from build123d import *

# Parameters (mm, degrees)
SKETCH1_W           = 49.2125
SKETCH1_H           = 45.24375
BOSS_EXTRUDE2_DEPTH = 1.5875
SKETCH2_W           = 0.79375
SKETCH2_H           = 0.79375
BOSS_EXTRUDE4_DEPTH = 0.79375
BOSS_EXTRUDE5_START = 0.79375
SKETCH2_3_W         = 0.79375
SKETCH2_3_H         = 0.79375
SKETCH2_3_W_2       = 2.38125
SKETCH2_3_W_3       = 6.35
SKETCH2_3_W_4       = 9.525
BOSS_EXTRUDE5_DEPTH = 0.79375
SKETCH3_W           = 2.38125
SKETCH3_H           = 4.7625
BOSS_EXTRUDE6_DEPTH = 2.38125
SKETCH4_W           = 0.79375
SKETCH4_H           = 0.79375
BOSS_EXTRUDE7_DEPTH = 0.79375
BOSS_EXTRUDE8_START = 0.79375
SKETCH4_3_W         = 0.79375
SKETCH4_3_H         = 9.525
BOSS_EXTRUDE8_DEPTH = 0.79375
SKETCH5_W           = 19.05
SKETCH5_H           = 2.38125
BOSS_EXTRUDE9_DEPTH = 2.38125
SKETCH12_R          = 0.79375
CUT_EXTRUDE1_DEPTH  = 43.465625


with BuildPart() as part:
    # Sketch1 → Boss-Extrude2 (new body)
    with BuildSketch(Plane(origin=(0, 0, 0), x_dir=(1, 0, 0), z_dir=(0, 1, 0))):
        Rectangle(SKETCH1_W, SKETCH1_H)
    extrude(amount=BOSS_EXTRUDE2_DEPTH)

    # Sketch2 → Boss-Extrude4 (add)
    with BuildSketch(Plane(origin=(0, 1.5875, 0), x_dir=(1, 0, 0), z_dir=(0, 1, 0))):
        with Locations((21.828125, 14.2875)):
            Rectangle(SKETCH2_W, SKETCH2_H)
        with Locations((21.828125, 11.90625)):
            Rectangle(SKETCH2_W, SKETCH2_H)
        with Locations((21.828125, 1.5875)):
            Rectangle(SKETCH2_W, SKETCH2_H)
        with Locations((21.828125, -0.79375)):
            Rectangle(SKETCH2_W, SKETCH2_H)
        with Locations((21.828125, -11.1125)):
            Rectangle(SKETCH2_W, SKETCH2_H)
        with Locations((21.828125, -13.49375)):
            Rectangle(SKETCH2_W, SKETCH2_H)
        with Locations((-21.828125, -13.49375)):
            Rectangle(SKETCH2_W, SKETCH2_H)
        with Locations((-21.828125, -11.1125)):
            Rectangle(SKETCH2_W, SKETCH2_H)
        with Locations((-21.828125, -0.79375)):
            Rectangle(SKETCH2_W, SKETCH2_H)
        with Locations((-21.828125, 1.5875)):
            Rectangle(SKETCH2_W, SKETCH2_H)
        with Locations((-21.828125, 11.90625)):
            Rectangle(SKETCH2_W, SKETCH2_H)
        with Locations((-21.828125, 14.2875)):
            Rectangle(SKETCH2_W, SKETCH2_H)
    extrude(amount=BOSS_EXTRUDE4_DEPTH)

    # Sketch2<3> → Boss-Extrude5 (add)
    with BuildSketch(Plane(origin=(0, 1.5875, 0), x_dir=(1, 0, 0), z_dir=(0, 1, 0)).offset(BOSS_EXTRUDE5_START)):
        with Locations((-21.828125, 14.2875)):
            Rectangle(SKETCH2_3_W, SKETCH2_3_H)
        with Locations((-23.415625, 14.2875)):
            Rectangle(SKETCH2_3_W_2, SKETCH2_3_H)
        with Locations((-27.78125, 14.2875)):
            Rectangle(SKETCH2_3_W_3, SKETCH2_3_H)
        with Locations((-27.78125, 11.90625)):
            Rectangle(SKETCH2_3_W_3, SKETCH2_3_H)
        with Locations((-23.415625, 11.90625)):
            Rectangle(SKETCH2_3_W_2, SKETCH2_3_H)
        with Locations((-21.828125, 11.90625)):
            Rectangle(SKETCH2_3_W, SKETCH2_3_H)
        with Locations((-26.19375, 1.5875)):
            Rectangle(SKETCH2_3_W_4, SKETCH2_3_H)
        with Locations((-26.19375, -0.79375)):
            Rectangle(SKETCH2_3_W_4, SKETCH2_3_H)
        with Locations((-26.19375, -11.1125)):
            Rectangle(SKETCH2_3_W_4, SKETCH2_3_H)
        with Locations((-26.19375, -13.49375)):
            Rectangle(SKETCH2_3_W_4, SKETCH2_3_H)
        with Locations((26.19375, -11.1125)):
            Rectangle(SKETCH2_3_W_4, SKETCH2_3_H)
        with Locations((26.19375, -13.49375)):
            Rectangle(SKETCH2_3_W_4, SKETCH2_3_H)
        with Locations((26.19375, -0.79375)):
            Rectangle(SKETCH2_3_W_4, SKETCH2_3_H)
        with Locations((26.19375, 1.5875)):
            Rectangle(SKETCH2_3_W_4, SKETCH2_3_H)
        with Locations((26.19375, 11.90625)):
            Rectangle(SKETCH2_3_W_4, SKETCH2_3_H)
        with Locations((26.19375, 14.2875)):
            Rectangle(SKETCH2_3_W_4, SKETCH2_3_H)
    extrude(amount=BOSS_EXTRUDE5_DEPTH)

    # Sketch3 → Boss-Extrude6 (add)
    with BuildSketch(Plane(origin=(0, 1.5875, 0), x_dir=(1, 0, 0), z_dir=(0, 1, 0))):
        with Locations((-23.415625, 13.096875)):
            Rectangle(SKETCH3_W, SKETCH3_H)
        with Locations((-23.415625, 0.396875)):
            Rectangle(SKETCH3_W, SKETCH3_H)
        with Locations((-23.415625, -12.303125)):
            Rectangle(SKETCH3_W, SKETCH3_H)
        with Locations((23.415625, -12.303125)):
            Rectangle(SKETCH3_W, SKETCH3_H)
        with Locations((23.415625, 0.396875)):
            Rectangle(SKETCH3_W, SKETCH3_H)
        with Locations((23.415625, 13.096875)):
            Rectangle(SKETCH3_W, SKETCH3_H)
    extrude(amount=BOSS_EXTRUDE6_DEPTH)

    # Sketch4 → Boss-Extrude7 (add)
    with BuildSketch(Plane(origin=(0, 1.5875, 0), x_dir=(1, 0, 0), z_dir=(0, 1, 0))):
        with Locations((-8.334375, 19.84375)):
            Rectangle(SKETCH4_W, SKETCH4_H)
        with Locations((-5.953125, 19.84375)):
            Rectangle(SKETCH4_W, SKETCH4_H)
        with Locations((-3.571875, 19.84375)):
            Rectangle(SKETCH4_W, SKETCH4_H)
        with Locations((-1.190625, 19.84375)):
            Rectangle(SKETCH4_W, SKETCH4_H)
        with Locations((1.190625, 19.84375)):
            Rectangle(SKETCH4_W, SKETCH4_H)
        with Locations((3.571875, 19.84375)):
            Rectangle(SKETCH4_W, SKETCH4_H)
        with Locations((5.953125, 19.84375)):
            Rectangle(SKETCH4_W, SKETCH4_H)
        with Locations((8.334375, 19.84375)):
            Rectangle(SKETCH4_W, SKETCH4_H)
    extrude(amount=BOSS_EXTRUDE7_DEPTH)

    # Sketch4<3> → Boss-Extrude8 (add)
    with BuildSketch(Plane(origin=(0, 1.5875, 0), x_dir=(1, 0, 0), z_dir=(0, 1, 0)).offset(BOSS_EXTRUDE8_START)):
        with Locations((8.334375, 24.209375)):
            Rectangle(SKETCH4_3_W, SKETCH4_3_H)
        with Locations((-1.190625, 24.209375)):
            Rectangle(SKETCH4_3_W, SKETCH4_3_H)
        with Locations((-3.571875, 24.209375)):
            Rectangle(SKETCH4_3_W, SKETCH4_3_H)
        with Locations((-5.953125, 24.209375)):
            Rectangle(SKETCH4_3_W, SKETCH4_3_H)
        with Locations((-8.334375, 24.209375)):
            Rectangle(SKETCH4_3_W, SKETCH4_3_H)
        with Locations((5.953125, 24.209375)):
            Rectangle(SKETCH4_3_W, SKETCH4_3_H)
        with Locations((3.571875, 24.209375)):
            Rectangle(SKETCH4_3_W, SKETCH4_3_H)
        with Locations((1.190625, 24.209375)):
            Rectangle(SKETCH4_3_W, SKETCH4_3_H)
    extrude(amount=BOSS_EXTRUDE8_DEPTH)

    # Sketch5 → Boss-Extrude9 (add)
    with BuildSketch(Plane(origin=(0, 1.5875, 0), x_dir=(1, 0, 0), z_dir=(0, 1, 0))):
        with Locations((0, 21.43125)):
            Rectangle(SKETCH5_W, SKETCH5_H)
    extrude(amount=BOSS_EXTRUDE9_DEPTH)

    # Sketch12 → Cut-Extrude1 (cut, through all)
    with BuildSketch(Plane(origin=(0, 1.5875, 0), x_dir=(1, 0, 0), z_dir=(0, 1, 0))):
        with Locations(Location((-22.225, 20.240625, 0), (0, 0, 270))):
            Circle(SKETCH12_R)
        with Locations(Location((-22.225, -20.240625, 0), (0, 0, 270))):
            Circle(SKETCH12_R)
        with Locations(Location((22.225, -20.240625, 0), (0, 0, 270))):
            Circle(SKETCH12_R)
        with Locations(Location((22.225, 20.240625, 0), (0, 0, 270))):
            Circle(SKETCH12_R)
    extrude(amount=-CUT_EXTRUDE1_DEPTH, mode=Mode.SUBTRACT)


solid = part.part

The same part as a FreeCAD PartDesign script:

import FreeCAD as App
import Part
import Sketcher
Q = App.Units.Quantity


def add_polygon(sketch, points):
    """Adds a closed chain of lines whose ends are joined by coincident constraints."""
    first, n = sketch.GeometryCount, len(points)
    for a, b in zip(points, points[1:] + points[:1]):
        sketch.addGeometry(Part.LineSegment(App.Vector(*a, 0), App.Vector(*b, 0)), False)
    for i in range(n):
        sketch.addConstraint(Sketcher.Constraint("Coincident", first + i, 2, first + (i + 1) % n, 1))

doc = App.newDocument("Part")
body = doc.addObject("PartDesign::Body", "Body")

sketch1 = body.newObject("Sketcher::SketchObject", "Sketch")
sketch1.AttachmentSupport = (doc.getObject("XZ_Plane"), [""])
sketch1.MapMode = "FlatFace"
add_polygon(sketch1, [(-25, -23), (-25, 23), (25, 23), (25, -23)])
sketch1.addConstraint(Sketcher.Constraint("Vertical", 0))
sketch1.addConstraint(Sketcher.Constraint("Horizontal", 1))
sketch1.addConstraint(Sketcher.Constraint("Vertical", 2))
sketch1.addConstraint(Sketcher.Constraint("Horizontal", 3))
sketch1.addConstraint(Sketcher.Constraint("Symmetric", 0, 2, 2, 2, -1, 1))
sketch1.addConstraint(Sketcher.Constraint("DistanceX", 1, 1, 1, 2, Q("1.9375 in")))
sketch1.addConstraint(Sketcher.Constraint("DistanceY", 0, 1, 0, 2, Q("1.78125 in")))
pad1 = body.newObject("PartDesign::Pad", "Pad")
pad1.Profile = sketch1
pad1.Length = Q("0.0625 in")
pad1.Reversed = True

sketch2 = body.newObject("Sketcher::SketchObject", "Sketch001")
sketch2.AttachmentSupport = (doc.getObject("XZ_Plane"), [""])
sketch2.MapMode = "FlatFace"
sketch2.AttachmentOffset = App.Placement(App.Vector(0, 0, -0.0625 * 25.4), App.Rotation())
add_polygon(sketch2, [(21.4, -14.7), (21.4, -13.9), (22.2, -13.9), (22.2, -14.7)])
add_polygon(sketch2, [(21.4, -12.3), (21.4, -11.5), (22.2, -11.5), (22.2, -12.3)])
add_polygon(sketch2, [(21.4, -2), (21.4, -1.2), (22.2, -1.2), (22.2, -2)])
add_polygon(sketch2, [(21.4, 0.4), (21.4, 1.2), (22.2, 1.2), (22.2, 0.4)])
add_polygon(sketch2, [(21.4, 10.7), (21.4, 11.5), (22.2, 11.5), (22.2, 10.7)])
add_polygon(sketch2, [(21.4, 13.1), (21.4, 13.9), (22.2, 13.9), (22.2, 13.1)])
add_polygon(sketch2, [(-22.2, 13.1), (-22.2, 13.9), (-21.4, 13.9), (-21.4, 13.1)])
add_polygon(sketch2, [(-22.2, 10.7), (-22.2, 11.5), (-21.4, 11.5), (-21.4, 10.7)])
add_polygon(sketch2, [(-22.2, 0.4), (-22.2, 1.2), (-21.4, 1.2), (-21.4, 0.4)])
add_polygon(sketch2, [(-22.2, -2), (-22.2, -1.2), (-21.4, -1.2), (-21.4, -2)])
add_polygon(sketch2, [(-22.2, -12.3), (-22.2, -11.5), (-21.4, -11.5), (-21.4, -12.3)])
add_polygon(sketch2, [(-22.2, -14.7), (-22.2, -13.9), (-21.4, -13.9), (-21.4, -14.7)])
sketch2.addConstraint(Sketcher.Constraint("Vertical", 0))
sketch2.addConstraint(Sketcher.Constraint("Horizontal", 1))
sketch2.addConstraint(Sketcher.Constraint("Vertical", 2))
sketch2.addConstraint(Sketcher.Constraint("Horizontal", 3))
sketch2.addConstraint(Sketcher.Constraint("Vertical", 4))
sketch2.addConstraint(Sketcher.Constraint("Horizontal", 5))
sketch2.addConstraint(Sketcher.Constraint("Vertical", 6))
sketch2.addConstraint(Sketcher.Constraint("Horizontal", 7))
sketch2.addConstraint(Sketcher.Constraint("Vertical", 8))
sketch2.addConstraint(Sketcher.Constraint("Horizontal", 9))
sketch2.addConstraint(Sketcher.Constraint("Vertical", 10))
sketch2.addConstraint(Sketcher.Constraint("Horizontal", 11))
sketch2.addConstraint(Sketcher.Constraint("Vertical", 12))
sketch2.addConstraint(Sketcher.Constraint("Horizontal", 13))
sketch2.addConstraint(Sketcher.Constraint("Vertical", 14))
sketch2.addConstraint(Sketcher.Constraint("Horizontal", 15))
sketch2.addConstraint(Sketcher.Constraint("Vertical", 16))
sketch2.addConstraint(Sketcher.Constraint("Horizontal", 17))
sketch2.addConstraint(Sketcher.Constraint("Vertical", 18))
sketch2.addConstraint(Sketcher.Constraint("Horizontal", 19))
sketch2.addConstraint(Sketcher.Constraint("Vertical", 20))
sketch2.addConstraint(Sketcher.Constraint("Horizontal", 21))
sketch2.addConstraint(Sketcher.Constraint("Vertical", 22))
sketch2.addConstraint(Sketcher.Constraint("Horizontal", 23))
sketch2.addConstraint(Sketcher.Constraint("Vertical", 24))
sketch2.addConstraint(Sketcher.Constraint("Horizontal", 25))
sketch2.addConstraint(Sketcher.Constraint("Vertical", 26))
sketch2.addConstraint(Sketcher.Constraint("Horizontal", 27))
sketch2.addConstraint(Sketcher.Constraint("Vertical", 28))
sketch2.addConstraint(Sketcher.Constraint("Horizontal", 29))
sketch2.addConstraint(Sketcher.Constraint("Vertical", 30))
sketch2.addConstraint(Sketcher.Constraint("Horizontal", 31))
sketch2.addConstraint(Sketcher.Constraint("Vertical", 32))
sketch2.addConstraint(Sketcher.Constraint("Horizontal", 33))
sketch2.addConstraint(Sketcher.Constraint("Vertical", 34))
sketch2.addConstraint(Sketcher.Constraint("Horizontal", 35))
sketch2.addConstraint(Sketcher.Constraint("Vertical", 36))
sketch2.addConstraint(Sketcher.Constraint("Horizontal", 37))
sketch2.addConstraint(Sketcher.Constraint("Vertical", 38))
sketch2.addConstraint(Sketcher.Constraint("Horizontal", 39))
sketch2.addConstraint(Sketcher.Constraint("Vertical", 40))
sketch2.addConstraint(Sketcher.Constraint("Horizontal", 41))
sketch2.addConstraint(Sketcher.Constraint("Vertical", 42))
sketch2.addConstraint(Sketcher.Constraint("Horizontal", 43))
sketch2.addConstraint(Sketcher.Constraint("Vertical", 44))
sketch2.addConstraint(Sketcher.Constraint("Horizontal", 45))
sketch2.addConstraint(Sketcher.Constraint("Vertical", 46))
sketch2.addConstraint(Sketcher.Constraint("Horizontal", 47))
sketch2.addConstraint(Sketcher.Constraint("Symmetric", 1, 2, 24, 2, -1, 1))
sketch2.addConstraint(Sketcher.Constraint("Symmetric", 5, 2, 28, 2, -1, 1))
sketch2.addConstraint(Sketcher.Constraint("Symmetric", 9, 2, 32, 2, -1, 1))
sketch2.addConstraint(Sketcher.Constraint("Symmetric", 13, 2, 36, 2, -1, 1))
sketch2.addConstraint(Sketcher.Constraint("Symmetric", 17, 2, 40, 2, -1, 1))
sketch2.addConstraint(Sketcher.Constraint("Symmetric", 21, 2, 44, 2, -1, 1))
sketch2.addConstraint(Sketcher.Constraint("Symmetric", 21, 2, 24, 2, -2))
sketch2.addConstraint(Sketcher.Constraint("Symmetric", 23, 2, 26, 2, -2))
sketch2.addConstraint(Sketcher.Constraint("Symmetric", 17, 2, 28, 2, -2))
sketch2.addConstraint(Sketcher.Constraint("Symmetric", 19, 2, 30, 2, -2))
sketch2.addConstraint(Sketcher.Constraint("Symmetric", 13, 2, 32, 2, -2))
sketch2.addConstraint(Sketcher.Constraint("Symmetric", 15, 2, 34, 2, -2))
sketch2.addConstraint(Sketcher.Constraint("Symmetric", 11, 2, 38, 2, -2))
sketch2.addConstraint(Sketcher.Constraint("Symmetric", 7, 2, 42, 2, -2))
sketch2.addConstraint(Sketcher.Constraint("Symmetric", 3, 2, 46, 2, -2))
sketch2.addConstraint(Sketcher.Constraint("Vertical", 3, 2, 4, 2))
sketch2.addConstraint(Sketcher.Constraint("Vertical", 2, 2, 5, 2))
sketch2.addConstraint(Sketcher.Constraint("Vertical", 7, 2, 8, 2))
sketch2.addConstraint(Sketcher.Constraint("Vertical", 6, 2, 9, 2))
sketch2.addConstraint(Sketcher.Constraint("Vertical", 11, 2, 12, 2))
sketch2.addConstraint(Sketcher.Constraint("Vertical", 15, 2, 16, 2))
sketch2.addConstraint(Sketcher.Constraint("Vertical", 19, 2, 20, 2))
sketch2.addConstraint(Sketcher.Constraint("Equal", 47, 0))
sketch2.addConstraint(Sketcher.Constraint("Equal", 2, 4))
sketch2.addConstraint(Sketcher.Constraint("Equal", 6, 8))
sketch2.addConstraint(Sketcher.Constraint("Equal", 10, 12))
sketch2.addConstraint(Sketcher.Constraint("Equal", 14, 16))
sketch2.addConstraint(Sketcher.Constraint("Equal", 18, 20))
sketch2.addConstraint(Sketcher.Constraint("DistanceY", 0, 2, 8, 2, Q("0.5 in")))
sketch2.addConstraint(Sketcher.Constraint("DistanceY", 4, 2, 12, 2, Q("0.5 in")))
sketch2.addConstraint(Sketcher.Constraint("DistanceX", 1, 1, 1, 2, Q("0.03125 in")))
sketch2.addConstraint(Sketcher.Constraint("DistanceX", 24, 2, 21, 2, Q("1.75 in")))
sketch2.addConstraint(Sketcher.Constraint("DistanceY", 0, 2, -1, 1, Q("0.546875 in")))
pad2 = body.newObject("PartDesign::Pad", "Pad001")
pad2.Profile = sketch2
pad2.Length = Q("0.03125 in")
pad2.Reversed = True

sketch3 = body.newObject("Sketcher::SketchObject", "Sketch002")
sketch3.AttachmentSupport = (doc.getObject("XZ_Plane"), [""])
sketch3.MapMode = "FlatFace"
sketch3.AttachmentOffset = App.Placement(App.Vector(0, 0, -0.09375 * 25.4), App.Rotation())
add_polygon(sketch3, [(-21.4, -13.9), (-21.4, -14.7), (-31, -14.7), (-31, -13.9)])
add_polygon(sketch3, [(-31, -12.3), (-31, -11.5), (-21.4, -11.5), (-21.4, -12.3)])
add_polygon(sketch3, [(-31, -2), (-31, -1.2), (-21.4, -1.2), (-21.4, -2)])
add_polygon(sketch3, [(-31, 0.4), (-31, 1.2), (-21.4, 1.2), (-21.4, 0.4)])
add_polygon(sketch3, [(-31, 10.7), (-31, 11.5), (-21.4, 11.5), (-21.4, 10.7)])
add_polygon(sketch3, [(-31, 13.1), (-31, 13.9), (-21.4, 13.9), (-21.4, 13.1)])
add_polygon(sketch3, [(21.4, 10.7), (21.4, 11.5), (31, 11.5), (31, 10.7)])
add_polygon(sketch3, [(21.4, 13.1), (21.4, 13.9), (31, 13.9), (31, 13.1)])
add_polygon(sketch3, [(21.4, 0.4), (21.4, 1.2), (31, 1.2), (31, 0.4)])
add_polygon(sketch3, [(21.4, -2), (21.4, -1.2), (31, -1.2), (31, -2)])
add_polygon(sketch3, [(21.4, -12.3), (21.4, -11.5), (31, -11.5), (31, -12.3)])
add_polygon(sketch3, [(21.4, -14.7), (21.4, -13.9), (31, -13.9), (31, -14.7)])
sketch3.addConstraint(Sketcher.Constraint("Vertical", 0))
sketch3.addConstraint(Sketcher.Constraint("Horizontal", 1))
sketch3.addConstraint(Sketcher.Constraint("Vertical", 2))
sketch3.addConstraint(Sketcher.Constraint("Horizontal", 3))
sketch3.addConstraint(Sketcher.Constraint("Vertical", 4))
sketch3.addConstraint(Sketcher.Constraint("Horizontal", 5))
sketch3.addConstraint(Sketcher.Constraint("Vertical", 6))
sketch3.addConstraint(Sketcher.Constraint("Horizontal", 7))
sketch3.addConstraint(Sketcher.Constraint("Vertical", 8))
sketch3.addConstraint(Sketcher.Constraint("Horizontal", 9))
sketch3.addConstraint(Sketcher.Constraint("Vertical", 10))
sketch3.addConstraint(Sketcher.Constraint("Horizontal", 11))
sketch3.addConstraint(Sketcher.Constraint("Vertical", 12))
sketch3.addConstraint(Sketcher.Constraint("Horizontal", 13))
sketch3.addConstraint(Sketcher.Constraint("Vertical", 14))
sketch3.addConstraint(Sketcher.Constraint("Horizontal", 15))
sketch3.addConstraint(Sketcher.Constraint("Vertical", 16))
sketch3.addConstraint(Sketcher.Constraint("Horizontal", 17))
sketch3.addConstraint(Sketcher.Constraint("Vertical", 18))
sketch3.addConstraint(Sketcher.Constraint("Horizontal", 19))
sketch3.addConstraint(Sketcher.Constraint("Vertical", 20))
sketch3.addConstraint(Sketcher.Constraint("Horizontal", 21))
sketch3.addConstraint(Sketcher.Constraint("Vertical", 22))
sketch3.addConstraint(Sketcher.Constraint("Horizontal", 23))
sketch3.addConstraint(Sketcher.Constraint("Vertical", 24))
sketch3.addConstraint(Sketcher.Constraint("Horizontal", 25))
sketch3.addConstraint(Sketcher.Constraint("Vertical", 26))
sketch3.addConstraint(Sketcher.Constraint("Horizontal", 27))
sketch3.addConstraint(Sketcher.Constraint("Vertical", 28))
sketch3.addConstraint(Sketcher.Constraint("Horizontal", 29))
sketch3.addConstraint(Sketcher.Constraint("Vertical", 30))
sketch3.addConstraint(Sketcher.Constraint("Horizontal", 31))
sketch3.addConstraint(Sketcher.Constraint("Vertical", 32))
sketch3.addConstraint(Sketcher.Constraint("Horizontal", 33))
sketch3.addConstraint(Sketcher.Constraint("Vertical", 34))
sketch3.addConstraint(Sketcher.Constraint("Horizontal", 35))
sketch3.addConstraint(Sketcher.Constraint("Vertical", 36))
sketch3.addConstraint(Sketcher.Constraint("Horizontal", 37))
sketch3.addConstraint(Sketcher.Constraint("Vertical", 38))
sketch3.addConstraint(Sketcher.Constraint("Horizontal", 39))
sketch3.addConstraint(Sketcher.Constraint("Vertical", 40))
sketch3.addConstraint(Sketcher.Constraint("Horizontal", 41))
sketch3.addConstraint(Sketcher.Constraint("Vertical", 42))
sketch3.addConstraint(Sketcher.Constraint("Horizontal", 43))
sketch3.addConstraint(Sketcher.Constraint("Vertical", 44))
sketch3.addConstraint(Sketcher.Constraint("Horizontal", 45))
sketch3.addConstraint(Sketcher.Constraint("Vertical", 46))
sketch3.addConstraint(Sketcher.Constraint("Horizontal", 47))
sketch3.addConstraint(Sketcher.Constraint("Symmetric", 5, 2, 24, 2, -1, 1))
sketch3.addConstraint(Sketcher.Constraint("Symmetric", 3, 2, 28, 2, -1, 1))
sketch3.addConstraint(Sketcher.Constraint("Symmetric", 9, 2, 32, 2, -1, 1))
sketch3.addConstraint(Sketcher.Constraint("Symmetric", 13, 2, 36, 2, -1, 1))
sketch3.addConstraint(Sketcher.Constraint("Symmetric", 17, 2, 40, 2, -1, 1))
sketch3.addConstraint(Sketcher.Constraint("Symmetric", 21, 2, 44, 2, -1, 1))
sketch3.addConstraint(Sketcher.Constraint("Symmetric", 17, 2, 24, 2, -2))
sketch3.addConstraint(Sketcher.Constraint("Symmetric", 19, 2, 26, 2, -2))
sketch3.addConstraint(Sketcher.Constraint("Symmetric", 21, 2, 28, 2, -2))
sketch3.addConstraint(Sketcher.Constraint("Symmetric", 23, 2, 30, 2, -2))
sketch3.addConstraint(Sketcher.Constraint("Symmetric", 13, 2, 32, 2, -2))
sketch3.addConstraint(Sketcher.Constraint("Symmetric", 15, 2, 34, 2, -2))
sketch3.addConstraint(Sketcher.Constraint("Symmetric", 11, 2, 38, 2, -2))
sketch3.addConstraint(Sketcher.Constraint("Symmetric", 7, 2, 42, 2, -2))
sketch3.addConstraint(Sketcher.Constraint("Symmetric", 1, 2, 46, 2, -2))
sketch3.addConstraint(Sketcher.Constraint("Vertical", 2, 2, 4, 2))
sketch3.addConstraint(Sketcher.Constraint("Vertical", 3, 2, 5, 2))
sketch3.addConstraint(Sketcher.Constraint("Vertical", 7, 2, 8, 2))
sketch3.addConstraint(Sketcher.Constraint("Vertical", 6, 2, 9, 2))
sketch3.addConstraint(Sketcher.Constraint("Vertical", 11, 2, 12, 2))
sketch3.addConstraint(Sketcher.Constraint("Vertical", 15, 2, 16, 2))
sketch3.addConstraint(Sketcher.Constraint("Vertical", 19, 2, 20, 2))
sketch3.addConstraint(Sketcher.Constraint("Equal", 2, 4))
sketch3.addConstraint(Sketcher.Constraint("Equal", 6, 8))
sketch3.addConstraint(Sketcher.Constraint("Equal", 10, 12))
sketch3.addConstraint(Sketcher.Constraint("Equal", 14, 16))
sketch3.addConstraint(Sketcher.Constraint("Equal", 18, 20))
sketch3.addConstraint(Sketcher.Constraint("DistanceY", 2, 2, 8, 2, Q("0.5 in")))
sketch3.addConstraint(Sketcher.Constraint("DistanceY", 4, 2, 12, 2, Q("0.5 in")))
sketch3.addConstraint(Sketcher.Constraint("DistanceX", 1, 2, 1, 1, Q("0.375 in")))
sketch3.addConstraint(Sketcher.Constraint("DistanceY", 0, 2, 0, 1, Q("0.03125 in")))
sketch3.addConstraint(Sketcher.Constraint("DistanceX", 0, 2, -1, 1, Q("0.84375 in")))
sketch3.addConstraint(Sketcher.Constraint("DistanceY", 0, 2, -1, 1, Q("0.578125 in")))
pad3 = body.newObject("PartDesign::Pad", "Pad002")
pad3.Profile = sketch3
pad3.Length = Q("0.03125 in")
pad3.Reversed = True

sketch4 = body.newObject("Sketcher::SketchObject", "Sketch003")
sketch4.AttachmentSupport = (doc.getObject("XZ_Plane"), [""])
sketch4.MapMode = "FlatFace"
sketch4.AttachmentOffset = App.Placement(App.Vector(0, 0, -0.0625 * 25.4), App.Rotation())
add_polygon(sketch4, [(-24.6, -15.5), (-24.6, -10.7), (-22.2, -10.7), (-22.2, -15.5)])
add_polygon(sketch4, [(-24.6, -2.8), (-24.6, 2), (-22.2, 2), (-22.2, -2.8)])
add_polygon(sketch4, [(-24.6, 9.9), (-24.6, 14.7), (-22.2, 14.7), (-22.2, 9.9)])
add_polygon(sketch4, [(22.2, 9.9), (22.2, 14.7), (24.6, 14.7), (24.6, 9.9)])
add_polygon(sketch4, [(22.2, -2.8), (22.2, 2), (24.6, 2), (24.6, -2.8)])
add_polygon(sketch4, [(22.2, -15.5), (22.2, -10.7), (24.6, -10.7), (24.6, -15.5)])
sketch4.addConstraint(Sketcher.Constraint("Vertical", 0))
sketch4.addConstraint(Sketcher.Constraint("Horizontal", 1))
sketch4.addConstraint(Sketcher.Constraint("Vertical", 2))
sketch4.addConstraint(Sketcher.Constraint("Horizontal", 3))
sketch4.addConstraint(Sketcher.Constraint("Vertical", 4))
sketch4.addConstraint(Sketcher.Constraint("Horizontal", 5))
sketch4.addConstraint(Sketcher.Constraint("Vertical", 6))
sketch4.addConstraint(Sketcher.Constraint("Horizontal", 7))
sketch4.addConstraint(Sketcher.Constraint("Vertical", 8))
sketch4.addConstraint(Sketcher.Constraint("Horizontal", 9))
sketch4.addConstraint(Sketcher.Constraint("Vertical", 10))
sketch4.addConstraint(Sketcher.Constraint("Horizontal", 11))
sketch4.addConstraint(Sketcher.Constraint("Vertical", 12))
sketch4.addConstraint(Sketcher.Constraint("Horizontal", 13))
sketch4.addConstraint(Sketcher.Constraint("Vertical", 14))
sketch4.addConstraint(Sketcher.Constraint("Horizontal", 15))
sketch4.addConstraint(Sketcher.Constraint("Vertical", 16))
sketch4.addConstraint(Sketcher.Constraint("Horizontal", 17))
sketch4.addConstraint(Sketcher.Constraint("Vertical", 18))
sketch4.addConstraint(Sketcher.Constraint("Horizontal", 19))
sketch4.addConstraint(Sketcher.Constraint("Vertical", 20))
sketch4.addConstraint(Sketcher.Constraint("Horizontal", 21))
sketch4.addConstraint(Sketcher.Constraint("Vertical", 22))
sketch4.addConstraint(Sketcher.Constraint("Horizontal", 23))
sketch4.addConstraint(Sketcher.Constraint("Symmetric", 9, 2, 12, 2, -2))
sketch4.addConstraint(Sketcher.Constraint("Symmetric", 11, 2, 14, 2, -2))
sketch4.addConstraint(Sketcher.Constraint("Symmetric", 5, 2, 16, 2, -2))
sketch4.addConstraint(Sketcher.Constraint("Symmetric", 7, 2, 18, 2, -2))
sketch4.addConstraint(Sketcher.Constraint("Symmetric", 1, 2, 20, 2, -2))
sketch4.addConstraint(Sketcher.Constraint("Symmetric", 3, 2, 22, 2, -2))
sketch4.addConstraint(Sketcher.Constraint("Vertical", 3, 2, 4, 2))
sketch4.addConstraint(Sketcher.Constraint("Vertical", 2, 2, 5, 2))
sketch4.addConstraint(Sketcher.Constraint("Vertical", 7, 2, 8, 2))
sketch4.addConstraint(Sketcher.Constraint("Vertical", 6, 2, 9, 2))
sketch4.addConstraint(Sketcher.Constraint("Equal", 2, 4))
sketch4.addConstraint(Sketcher.Constraint("Equal", 6, 8))
sketch4.addConstraint(Sketcher.Constraint("DistanceY", 0, 2, 8, 2, Q("1 in")))
sketch4.addConstraint(Sketcher.Constraint("DistanceY", 0, 2, 4, 2, Q("0.5 in")))
sketch4.addConstraint(Sketcher.Constraint("DistanceX", 1, 1, 1, 2, Q("0.09375 in")))
sketch4.addConstraint(Sketcher.Constraint("DistanceY", 0, 1, 0, 2, Q("0.1875 in")))
sketch4.addConstraint(Sketcher.Constraint("DistanceX", 9, 2, 12, 2, Q("1.75 in")))
sketch4.addConstraint(Sketcher.Constraint("DistanceY", 0, 2, -1, 1, Q("0.421875 in")))
pad4 = body.newObject("PartDesign::Pad", "Pad003")
pad4.Profile = sketch4
pad4.Length = Q("0.09375 in")
pad4.Reversed = True

sketch5 = body.newObject("Sketcher::SketchObject", "Sketch004")
sketch5.AttachmentSupport = (doc.getObject("XZ_Plane"), [""])
sketch5.MapMode = "FlatFace"
sketch5.AttachmentOffset = App.Placement(App.Vector(0, 0, -0.0625 * 25.4), App.Rotation())
add_polygon(sketch5, [(-8.7, -20.2), (-8.7, -19.4), (-7.9, -19.4), (-7.9, -20.2)])
add_polygon(sketch5, [(-6.3, -20.2), (-6.3, -19.4), (-5.6, -19.4), (-5.6, -20.2)])
add_polygon(sketch5, [(-4, -20.2), (-4, -19.4), (-3.2, -19.4), (-3.2, -20.2)])
add_polygon(sketch5, [(-1.6, -20.2), (-1.6, -19.4), (-0.8, -19.4), (-0.8, -20.2)])
add_polygon(sketch5, [(0.8, -20.2), (0.8, -19.4), (1.6, -19.4), (1.6, -20.2)])
add_polygon(sketch5, [(3.2, -20.2), (3.2, -19.4), (4, -19.4), (4, -20.2)])
add_polygon(sketch5, [(5.6, -20.2), (5.6, -19.4), (6.3, -19.4), (6.3, -20.2)])
add_polygon(sketch5, [(7.9, -20.2), (7.9, -19.4), (8.7, -19.4), (8.7, -20.2)])
sketch5.addConstraint(Sketcher.Constraint("Vertical", 0))
sketch5.addConstraint(Sketcher.Constraint("Horizontal", 1))
sketch5.addConstraint(Sketcher.Constraint("Vertical", 2))
sketch5.addConstraint(Sketcher.Constraint("Horizontal", 3))
sketch5.addConstraint(Sketcher.Constraint("Vertical", 4))
sketch5.addConstraint(Sketcher.Constraint("Horizontal", 5))
sketch5.addConstraint(Sketcher.Constraint("Vertical", 6))
sketch5.addConstraint(Sketcher.Constraint("Horizontal", 7))
sketch5.addConstraint(Sketcher.Constraint("Vertical", 8))
sketch5.addConstraint(Sketcher.Constraint("Horizontal", 9))
sketch5.addConstraint(Sketcher.Constraint("Vertical", 10))
sketch5.addConstraint(Sketcher.Constraint("Horizontal", 11))
sketch5.addConstraint(Sketcher.Constraint("Vertical", 12))
sketch5.addConstraint(Sketcher.Constraint("Horizontal", 13))
sketch5.addConstraint(Sketcher.Constraint("Vertical", 14))
sketch5.addConstraint(Sketcher.Constraint("Horizontal", 15))
sketch5.addConstraint(Sketcher.Constraint("Vertical", 16))
sketch5.addConstraint(Sketcher.Constraint("Horizontal", 17))
sketch5.addConstraint(Sketcher.Constraint("Vertical", 18))
sketch5.addConstraint(Sketcher.Constraint("Horizontal", 19))
sketch5.addConstraint(Sketcher.Constraint("Vertical", 20))
sketch5.addConstraint(Sketcher.Constraint("Horizontal", 21))
sketch5.addConstraint(Sketcher.Constraint("Vertical", 22))
sketch5.addConstraint(Sketcher.Constraint("Horizontal", 23))
sketch5.addConstraint(Sketcher.Constraint("Vertical", 24))
sketch5.addConstraint(Sketcher.Constraint("Horizontal", 25))
sketch5.addConstraint(Sketcher.Constraint("Vertical", 26))
sketch5.addConstraint(Sketcher.Constraint("Horizontal", 27))
sketch5.addConstraint(Sketcher.Constraint("Vertical", 28))
sketch5.addConstraint(Sketcher.Constraint("Horizontal", 29))
sketch5.addConstraint(Sketcher.Constraint("Vertical", 30))
sketch5.addConstraint(Sketcher.Constraint("Horizontal", 31))
sketch5.addConstraint(Sketcher.Constraint("Symmetric", 13, 2, 16, 2, -2))
sketch5.addConstraint(Sketcher.Constraint("Symmetric", 15, 2, 18, 2, -2))
sketch5.addConstraint(Sketcher.Constraint("Symmetric", 9, 2, 20, 2, -2))
sketch5.addConstraint(Sketcher.Constraint("Symmetric", 11, 2, 22, 2, -2))
sketch5.addConstraint(Sketcher.Constraint("Symmetric", 5, 2, 24, 2, -2))
sketch5.addConstraint(Sketcher.Constraint("Symmetric", 7, 2, 26, 2, -2))
sketch5.addConstraint(Sketcher.Constraint("Symmetric", 1, 2, 28, 2, -2))
sketch5.addConstraint(Sketcher.Constraint("Symmetric", 3, 2, 30, 2, -2))
sketch5.addConstraint(Sketcher.Constraint("Horizontal", 1, 2, 4, 2))
sketch5.addConstraint(Sketcher.Constraint("Horizontal", 3, 2, 6, 2))
sketch5.addConstraint(Sketcher.Constraint("Horizontal", 5, 2, 8, 2))
sketch5.addConstraint(Sketcher.Constraint("Horizontal", 7, 2, 10, 2))
sketch5.addConstraint(Sketcher.Constraint("Horizontal", 9, 2, 12, 2))
sketch5.addConstraint(Sketcher.Constraint("Horizontal", 11, 2, 14, 2))
sketch5.addConstraint(Sketcher.Constraint("Equal", 3, 5))
sketch5.addConstraint(Sketcher.Constraint("Equal", 7, 9))
sketch5.addConstraint(Sketcher.Constraint("Equal", 11, 13))
sketch5.addConstraint(Sketcher.Constraint("Equal", 31, 0))
sketch5.addConstraint(Sketcher.Constraint("DistanceX", 1, 1, 1, 2, Q("0.03125 in")))
sketch5.addConstraint(Sketcher.Constraint("DistanceX", 4, 2, -1, 1, Q("0.25 in")))
sketch5.addConstraint(Sketcher.Constraint("DistanceX", 0, 2, -1, 1, Q("0.34375 in")))
sketch5.addConstraint(Sketcher.Constraint("DistanceY", 0, 2, -1, 1, Q("0.765625 in")))
sketch5.addConstraint(Sketcher.Constraint("DistanceX", 8, 2, -1, 1, Q("0.15625 in")))
sketch5.addConstraint(Sketcher.Constraint("DistanceX", 12, 2, -1, 1, Q("0.0625 in")))
pad5 = body.newObject("PartDesign::Pad", "Pad004")
pad5.Profile = sketch5
pad5.Length = Q("0.03125 in")
pad5.Reversed = True

sketch6 = body.newObject("Sketcher::SketchObject", "Sketch005")
sketch6.AttachmentSupport = (doc.getObject("XZ_Plane"), [""])
sketch6.MapMode = "FlatFace"
sketch6.AttachmentOffset = App.Placement(App.Vector(0, 0, -0.09375 * 25.4), App.Rotation())
add_polygon(sketch6, [(7.9, -29), (7.9, -19.4), (8.7, -19.4), (8.7, -29)])
add_polygon(sketch6, [(-1.6, -29), (-1.6, -19.4), (-0.8, -19.4), (-0.8, -29)])
add_polygon(sketch6, [(-4, -29), (-4, -19.4), (-3.2, -19.4), (-3.2, -29)])
add_polygon(sketch6, [(-6.3, -29), (-6.3, -19.4), (-5.6, -19.4), (-5.6, -29)])
add_polygon(sketch6, [(-8.7, -29), (-8.7, -19.4), (-7.9, -19.4), (-7.9, -29)])
add_polygon(sketch6, [(5.6, -29), (5.6, -19.4), (6.3, -19.4), (6.3, -29)])
add_polygon(sketch6, [(3.2, -29), (3.2, -19.4), (4, -19.4), (4, -29)])
add_polygon(sketch6, [(0.8, -29), (0.8, -19.4), (1.6, -19.4), (1.6, -29)])
sketch6.addConstraint(Sketcher.Constraint("Vertical", 0))
sketch6.addConstraint(Sketcher.Constraint("Horizontal", 1))
sketch6.addConstraint(Sketcher.Constraint("Vertical", 2))
sketch6.addConstraint(Sketcher.Constraint("Horizontal", 3))
sketch6.addConstraint(Sketcher.Constraint("Vertical", 4))
sketch6.addConstraint(Sketcher.Constraint("Horizontal", 5))
sketch6.addConstraint(Sketcher.Constraint("Vertical", 6))
sketch6.addConstraint(Sketcher.Constraint("Horizontal", 7))
sketch6.addConstraint(Sketcher.Constraint("Vertical", 8))
sketch6.addConstraint(Sketcher.Constraint("Horizontal", 9))
sketch6.addConstraint(Sketcher.Constraint("Vertical", 10))
sketch6.addConstraint(Sketcher.Constraint("Horizontal", 11))
sketch6.addConstraint(Sketcher.Constraint("Vertical", 12))
sketch6.addConstraint(Sketcher.Constraint("Horizontal", 13))
sketch6.addConstraint(Sketcher.Constraint("Vertical", 14))
sketch6.addConstraint(Sketcher.Constraint("Horizontal", 15))
sketch6.addConstraint(Sketcher.Constraint("Vertical", 16))
sketch6.addConstraint(Sketcher.Constraint("Horizontal", 17))
sketch6.addConstraint(Sketcher.Constraint("Vertical", 18))
sketch6.addConstraint(Sketcher.Constraint("Horizontal", 19))
sketch6.addConstraint(Sketcher.Constraint("Vertical", 20))
sketch6.addConstraint(Sketcher.Constraint("Horizontal", 21))
sketch6.addConstraint(Sketcher.Constraint("Vertical", 22))
sketch6.addConstraint(Sketcher.Constraint("Horizontal", 23))
sketch6.addConstraint(Sketcher.Constraint("Vertical", 24))
sketch6.addConstraint(Sketcher.Constraint("Horizontal", 25))
sketch6.addConstraint(Sketcher.Constraint("Vertical", 26))
sketch6.addConstraint(Sketcher.Constraint("Horizontal", 27))
sketch6.addConstraint(Sketcher.Constraint("Vertical", 28))
sketch6.addConstraint(Sketcher.Constraint("Horizontal", 29))
sketch6.addConstraint(Sketcher.Constraint("Vertical", 30))
sketch6.addConstraint(Sketcher.Constraint("Horizontal", 31))
sketch6.addConstraint(Sketcher.Constraint("Symmetric", 1, 2, 16, 2, -2))
sketch6.addConstraint(Sketcher.Constraint("Symmetric", 3, 2, 18, 2, -2))
sketch6.addConstraint(Sketcher.Constraint("Symmetric", 13, 2, 20, 2, -2))
sketch6.addConstraint(Sketcher.Constraint("Symmetric", 15, 2, 22, 2, -2))
sketch6.addConstraint(Sketcher.Constraint("Symmetric", 9, 2, 24, 2, -2))
sketch6.addConstraint(Sketcher.Constraint("Symmetric", 11, 2, 26, 2, -2))
sketch6.addConstraint(Sketcher.Constraint("Symmetric", 5, 2, 28, 2, -2))
sketch6.addConstraint(Sketcher.Constraint("Symmetric", 7, 2, 30, 2, -2))
sketch6.addConstraint(Sketcher.Constraint("Horizontal", 1, 2, 4, 2))
sketch6.addConstraint(Sketcher.Constraint("Horizontal", 3, 2, 6, 2))
sketch6.addConstraint(Sketcher.Constraint("Horizontal", 5, 2, 8, 2))
sketch6.addConstraint(Sketcher.Constraint("Horizontal", 7, 2, 10, 2))
sketch6.addConstraint(Sketcher.Constraint("Horizontal", 9, 2, 12, 2))
sketch6.addConstraint(Sketcher.Constraint("Horizontal", 11, 2, 14, 2))
sketch6.addConstraint(Sketcher.Constraint("Equal", 3, 5))
sketch6.addConstraint(Sketcher.Constraint("Equal", 7, 9))
sketch6.addConstraint(Sketcher.Constraint("Equal", 11, 13))
sketch6.addConstraint(Sketcher.Constraint("DistanceX", 1, 1, 1, 2, Q("0.03125 in")))
sketch6.addConstraint(Sketcher.Constraint("DistanceY", 0, 1, 0, 2, Q("0.375 in")))
sketch6.addConstraint(Sketcher.Constraint("DistanceX", 12, 2, -1, 1, Q("0.25 in")))
sketch6.addConstraint(Sketcher.Constraint("DistanceX", 18, 2, 7, 2, Q("0.25 in")))
sketch6.addConstraint(Sketcher.Constraint("DistanceX", 5, 2, 20, 2, Q("0.25 in")))
sketch6.addConstraint(Sketcher.Constraint("DistanceY", 0, 2, -1, 1, Q("0.765625 in")))
sketch6.addConstraint(Sketcher.Constraint("DistanceX", 8, 2, -1, 1, Q("0.15625 in")))
pad6 = body.newObject("PartDesign::Pad", "Pad005")
pad6.Profile = sketch6
pad6.Length = Q("0.03125 in")
pad6.Reversed = True

sketch7 = body.newObject("Sketcher::SketchObject", "Sketch006")
sketch7.AttachmentSupport = (doc.getObject("XZ_Plane"), [""])
sketch7.MapMode = "FlatFace"
sketch7.AttachmentOffset = App.Placement(App.Vector(0, 0, -0.0625 * 25.4), App.Rotation())
add_polygon(sketch7, [(-9.5, -22.6), (-9.5, -20.2), (9.5, -20.2), (9.5, -22.6)])
sketch7.addConstraint(Sketcher.Constraint("Vertical", 0))
sketch7.addConstraint(Sketcher.Constraint("Horizontal", 1))
sketch7.addConstraint(Sketcher.Constraint("Vertical", 2))
sketch7.addConstraint(Sketcher.Constraint("Horizontal", 3))
sketch7.addConstraint(Sketcher.Constraint("DistanceX", 1, 1, 1, 2, Q("0.75 in")))
sketch7.addConstraint(Sketcher.Constraint("DistanceY", 0, 1, 0, 2, Q("0.09375 in")))
sketch7.addConstraint(Sketcher.Constraint("DistanceX", 0, 2, -1, 1, Q("0.375 in")))
sketch7.addConstraint(Sketcher.Constraint("DistanceY", 0, 2, -1, 1, Q("0.796875 in")))
pad7 = body.newObject("PartDesign::Pad", "Pad006")
pad7.Profile = sketch7
pad7.Length = Q("0.09375 in")
pad7.Reversed = True

sketch8 = body.newObject("Sketcher::SketchObject", "Sketch007")
sketch8.AttachmentSupport = (doc.getObject("XZ_Plane"), [""])
sketch8.MapMode = "FlatFace"
sketch8.AttachmentOffset = App.Placement(App.Vector(0, 0, -0.0625 * 25.4), App.Rotation())
sketch8.addGeometry(Part.Circle(App.Vector(-22.2, -20.2, 0), App.Vector(0, 0, 1), 0.8), False)
sketch8.addGeometry(Part.Circle(App.Vector(-22.2, 20.2, 0), App.Vector(0, 0, 1), 0.8), False)
sketch8.addGeometry(Part.Circle(App.Vector(22.2, 20.2, 0), App.Vector(0, 0, 1), 0.8), False)
sketch8.addGeometry(Part.Circle(App.Vector(22.2, -20.2, 0), App.Vector(0, 0, 1), 0.8), False)
sketch8.addConstraint(Sketcher.Constraint("Equal", 0, 1))
sketch8.addConstraint(Sketcher.Constraint("Equal", 1, 2))
sketch8.addConstraint(Sketcher.Constraint("Equal", 2, 3))
sketch8.addConstraint(Sketcher.Constraint("Symmetric", 0, 3, 2, 3, -1, 1))
sketch8.addConstraint(Sketcher.Constraint("Symmetric", 1, 3, 3, 3, -1, 1))
sketch8.addConstraint(Sketcher.Constraint("Symmetric", 1, 3, 2, 3, -2))
sketch8.addConstraint(Sketcher.Constraint("Diameter", 0, Q("0.0625 in")))
sketch8.addConstraint(Sketcher.Constraint("DistanceX", 1, 3, 2, 3, Q("1.75 in")))
sketch8.addConstraint(Sketcher.Constraint("DistanceY", 0, 3, -1, 1, Q("0.796875 in")))
pocket1 = body.newObject("PartDesign::Pocket", "Pocket")
pocket1.Profile = sketch8
pocket1.Type = "ThroughAll"
pocket1.Reversed = True

doc.recompute()
